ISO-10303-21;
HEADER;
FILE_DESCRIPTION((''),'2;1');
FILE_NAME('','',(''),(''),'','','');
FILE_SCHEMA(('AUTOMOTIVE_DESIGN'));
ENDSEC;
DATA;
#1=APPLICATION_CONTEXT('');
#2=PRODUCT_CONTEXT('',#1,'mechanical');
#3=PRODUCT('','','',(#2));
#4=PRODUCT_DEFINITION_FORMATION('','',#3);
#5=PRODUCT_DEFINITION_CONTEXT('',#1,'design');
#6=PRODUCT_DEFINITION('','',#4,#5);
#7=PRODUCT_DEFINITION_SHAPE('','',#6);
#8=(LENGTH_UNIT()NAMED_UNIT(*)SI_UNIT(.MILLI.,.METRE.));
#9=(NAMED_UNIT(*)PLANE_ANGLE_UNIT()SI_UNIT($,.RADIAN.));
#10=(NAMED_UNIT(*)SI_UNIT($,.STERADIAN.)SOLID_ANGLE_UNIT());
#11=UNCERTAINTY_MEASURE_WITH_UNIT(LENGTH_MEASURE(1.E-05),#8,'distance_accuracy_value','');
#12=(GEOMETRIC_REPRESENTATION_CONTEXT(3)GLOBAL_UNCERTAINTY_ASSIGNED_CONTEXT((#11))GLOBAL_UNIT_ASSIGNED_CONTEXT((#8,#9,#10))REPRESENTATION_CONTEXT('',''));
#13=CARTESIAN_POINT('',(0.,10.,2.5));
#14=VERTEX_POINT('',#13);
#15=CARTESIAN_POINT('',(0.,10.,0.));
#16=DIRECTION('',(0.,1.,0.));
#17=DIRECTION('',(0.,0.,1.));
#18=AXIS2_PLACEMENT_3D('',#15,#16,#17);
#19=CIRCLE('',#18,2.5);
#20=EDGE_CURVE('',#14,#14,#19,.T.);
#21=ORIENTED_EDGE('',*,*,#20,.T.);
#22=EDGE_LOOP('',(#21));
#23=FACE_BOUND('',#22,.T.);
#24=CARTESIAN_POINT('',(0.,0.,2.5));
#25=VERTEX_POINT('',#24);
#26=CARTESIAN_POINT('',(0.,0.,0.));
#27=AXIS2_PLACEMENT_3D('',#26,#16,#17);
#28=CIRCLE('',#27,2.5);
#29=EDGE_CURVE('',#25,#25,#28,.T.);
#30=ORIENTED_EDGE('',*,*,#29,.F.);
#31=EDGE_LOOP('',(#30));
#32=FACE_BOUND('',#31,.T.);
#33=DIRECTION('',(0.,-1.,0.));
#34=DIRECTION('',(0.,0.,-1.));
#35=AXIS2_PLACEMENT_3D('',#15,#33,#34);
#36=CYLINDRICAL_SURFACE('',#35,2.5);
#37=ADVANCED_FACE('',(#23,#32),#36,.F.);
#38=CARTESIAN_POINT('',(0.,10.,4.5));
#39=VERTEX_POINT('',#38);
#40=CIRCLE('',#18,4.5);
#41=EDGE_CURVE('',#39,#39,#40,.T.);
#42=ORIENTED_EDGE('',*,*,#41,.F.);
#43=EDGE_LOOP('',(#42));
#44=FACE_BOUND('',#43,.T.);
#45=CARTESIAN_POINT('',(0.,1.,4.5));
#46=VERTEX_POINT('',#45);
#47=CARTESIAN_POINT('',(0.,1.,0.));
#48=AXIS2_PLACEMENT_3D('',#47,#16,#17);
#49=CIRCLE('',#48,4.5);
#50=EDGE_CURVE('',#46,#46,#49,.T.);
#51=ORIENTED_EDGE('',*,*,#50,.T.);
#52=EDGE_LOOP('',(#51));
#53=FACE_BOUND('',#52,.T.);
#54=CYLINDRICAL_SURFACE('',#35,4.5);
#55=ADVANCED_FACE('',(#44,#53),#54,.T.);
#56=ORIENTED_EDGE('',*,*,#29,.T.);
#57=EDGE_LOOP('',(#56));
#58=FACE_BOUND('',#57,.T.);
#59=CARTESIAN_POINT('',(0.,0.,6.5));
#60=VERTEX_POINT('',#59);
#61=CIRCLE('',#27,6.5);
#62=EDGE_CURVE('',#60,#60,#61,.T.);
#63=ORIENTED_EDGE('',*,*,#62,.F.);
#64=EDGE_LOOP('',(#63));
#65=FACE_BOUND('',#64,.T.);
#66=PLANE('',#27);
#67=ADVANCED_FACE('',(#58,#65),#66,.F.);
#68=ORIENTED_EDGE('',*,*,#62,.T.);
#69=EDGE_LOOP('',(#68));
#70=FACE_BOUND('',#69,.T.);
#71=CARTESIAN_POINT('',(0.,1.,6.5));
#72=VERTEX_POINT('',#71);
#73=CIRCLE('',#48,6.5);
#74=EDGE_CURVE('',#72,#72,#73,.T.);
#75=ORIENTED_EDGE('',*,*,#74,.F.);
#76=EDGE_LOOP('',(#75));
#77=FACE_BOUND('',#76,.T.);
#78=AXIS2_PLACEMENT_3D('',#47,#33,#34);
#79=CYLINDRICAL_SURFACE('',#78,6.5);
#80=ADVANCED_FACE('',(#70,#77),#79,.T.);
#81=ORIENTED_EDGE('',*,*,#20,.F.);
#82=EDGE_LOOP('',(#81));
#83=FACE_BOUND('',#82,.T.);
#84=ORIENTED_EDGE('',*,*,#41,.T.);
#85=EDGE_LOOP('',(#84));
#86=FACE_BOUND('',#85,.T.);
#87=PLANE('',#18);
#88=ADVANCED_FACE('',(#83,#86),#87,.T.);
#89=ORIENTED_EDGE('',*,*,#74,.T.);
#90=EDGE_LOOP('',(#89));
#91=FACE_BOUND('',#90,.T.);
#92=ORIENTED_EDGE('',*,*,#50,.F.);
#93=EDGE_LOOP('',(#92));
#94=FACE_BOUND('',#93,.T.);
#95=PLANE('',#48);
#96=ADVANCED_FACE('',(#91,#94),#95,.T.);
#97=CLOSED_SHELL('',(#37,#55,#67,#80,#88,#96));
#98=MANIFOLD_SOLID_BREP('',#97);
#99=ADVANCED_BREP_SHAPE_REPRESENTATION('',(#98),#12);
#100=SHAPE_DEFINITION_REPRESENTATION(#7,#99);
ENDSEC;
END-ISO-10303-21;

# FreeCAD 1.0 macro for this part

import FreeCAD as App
import Part
import Sketcher

V = App.Vector

doc = App.newDocument("Part")
params = doc.addObject("Spreadsheet::Sheet", "Params")
for row, (alias, value) in enumerate([
    ("sketch1_diameter", "9 mm"),
    ("sketch1_diameter2", "5 mm"),
    ("pad1_length", "10 mm"),
    ("sketch2_diameter", "13 mm"),
    ("sketch2_diameter2", "9 mm"),
    ("pad2_length", "1 mm"),
], start=1):
    params.set(f"A{row}", alias)
    params.set(f"B{row}", "=" + value)
    params.setAlias(f"B{row}", alias)

body = doc.addObject("PartDesign::Body", "Body")

sketch1 = body.newObject("Sketcher::SketchObject", "Sketch")
sketch1.AttachmentSupport = (doc.getObject("XZ_Plane"), [""])
sketch1.MapMode = "FlatFace"
sketch1.addGeometry(Part.Circle(V(0, 0, 0), V(0, 0, 1), 4.5), False)
sketch1.addGeometry(Part.Circle(V(0, 0, 0), V(0, 0, 1), 2.5), False)
sketch1.addConstraint(Sketcher.Constraint("Coincident", 0, 3, -1, 1))
sketch1.addConstraint(Sketcher.Constraint("Coincident", 1, 3, -1, 1))
sketch1.addConstraint(Sketcher.Constraint("Diameter", 0, 9.0))
sketch1.addConstraint(Sketcher.Constraint("Diameter", 1, 5.0))
sketch1.setExpression("Constraints[2]", "Params.sketch1_diameter")
sketch1.setExpression("Constraints[3]", "Params.sketch1_diameter2")
pad1 = body.newObject("PartDesign::Pad", "Pad")
pad1.Profile = sketch1
pad1.setExpression("Length", "Params.pad1_length")
pad1.Reversed = True

sketch2 = body.newObject("Sketcher::SketchObject", "Sketch001")
sketch2.AttachmentSupport = (doc.getObject("XZ_Plane"), [""])
sketch2.MapMode = "FlatFace"
sketch2.addGeometry(Part.Circle(V(0, 0, 0), V(0, 0, 1), 6.5), False)
sketch2.addGeometry(Part.Circle(V(0, 0, 0), V(0, 0, 1), 4.5), False)
sketch2.addConstraint(Sketcher.Constraint("Coincident", 0, 3, -1, 1))
sketch2.addConstraint(Sketcher.Constraint("Coincident", 1, 3, -1, 1))
sketch2.addConstraint(Sketcher.Constraint("Diameter", 0, 13.0))
sketch2.addConstraint(Sketcher.Constraint("Diameter", 1, 9.0))
sketch2.setExpression("Constraints[2]", "Params.sketch2_diameter")
sketch2.setExpression("Constraints[3]", "Params.sketch2_diameter2")
pad2 = body.newObject("PartDesign::Pad", "Pad001")
pad2.Profile = sketch2
pad2.setExpression("Length", "Params.pad2_length")
pad2.Reversed = True

doc.recompute()
